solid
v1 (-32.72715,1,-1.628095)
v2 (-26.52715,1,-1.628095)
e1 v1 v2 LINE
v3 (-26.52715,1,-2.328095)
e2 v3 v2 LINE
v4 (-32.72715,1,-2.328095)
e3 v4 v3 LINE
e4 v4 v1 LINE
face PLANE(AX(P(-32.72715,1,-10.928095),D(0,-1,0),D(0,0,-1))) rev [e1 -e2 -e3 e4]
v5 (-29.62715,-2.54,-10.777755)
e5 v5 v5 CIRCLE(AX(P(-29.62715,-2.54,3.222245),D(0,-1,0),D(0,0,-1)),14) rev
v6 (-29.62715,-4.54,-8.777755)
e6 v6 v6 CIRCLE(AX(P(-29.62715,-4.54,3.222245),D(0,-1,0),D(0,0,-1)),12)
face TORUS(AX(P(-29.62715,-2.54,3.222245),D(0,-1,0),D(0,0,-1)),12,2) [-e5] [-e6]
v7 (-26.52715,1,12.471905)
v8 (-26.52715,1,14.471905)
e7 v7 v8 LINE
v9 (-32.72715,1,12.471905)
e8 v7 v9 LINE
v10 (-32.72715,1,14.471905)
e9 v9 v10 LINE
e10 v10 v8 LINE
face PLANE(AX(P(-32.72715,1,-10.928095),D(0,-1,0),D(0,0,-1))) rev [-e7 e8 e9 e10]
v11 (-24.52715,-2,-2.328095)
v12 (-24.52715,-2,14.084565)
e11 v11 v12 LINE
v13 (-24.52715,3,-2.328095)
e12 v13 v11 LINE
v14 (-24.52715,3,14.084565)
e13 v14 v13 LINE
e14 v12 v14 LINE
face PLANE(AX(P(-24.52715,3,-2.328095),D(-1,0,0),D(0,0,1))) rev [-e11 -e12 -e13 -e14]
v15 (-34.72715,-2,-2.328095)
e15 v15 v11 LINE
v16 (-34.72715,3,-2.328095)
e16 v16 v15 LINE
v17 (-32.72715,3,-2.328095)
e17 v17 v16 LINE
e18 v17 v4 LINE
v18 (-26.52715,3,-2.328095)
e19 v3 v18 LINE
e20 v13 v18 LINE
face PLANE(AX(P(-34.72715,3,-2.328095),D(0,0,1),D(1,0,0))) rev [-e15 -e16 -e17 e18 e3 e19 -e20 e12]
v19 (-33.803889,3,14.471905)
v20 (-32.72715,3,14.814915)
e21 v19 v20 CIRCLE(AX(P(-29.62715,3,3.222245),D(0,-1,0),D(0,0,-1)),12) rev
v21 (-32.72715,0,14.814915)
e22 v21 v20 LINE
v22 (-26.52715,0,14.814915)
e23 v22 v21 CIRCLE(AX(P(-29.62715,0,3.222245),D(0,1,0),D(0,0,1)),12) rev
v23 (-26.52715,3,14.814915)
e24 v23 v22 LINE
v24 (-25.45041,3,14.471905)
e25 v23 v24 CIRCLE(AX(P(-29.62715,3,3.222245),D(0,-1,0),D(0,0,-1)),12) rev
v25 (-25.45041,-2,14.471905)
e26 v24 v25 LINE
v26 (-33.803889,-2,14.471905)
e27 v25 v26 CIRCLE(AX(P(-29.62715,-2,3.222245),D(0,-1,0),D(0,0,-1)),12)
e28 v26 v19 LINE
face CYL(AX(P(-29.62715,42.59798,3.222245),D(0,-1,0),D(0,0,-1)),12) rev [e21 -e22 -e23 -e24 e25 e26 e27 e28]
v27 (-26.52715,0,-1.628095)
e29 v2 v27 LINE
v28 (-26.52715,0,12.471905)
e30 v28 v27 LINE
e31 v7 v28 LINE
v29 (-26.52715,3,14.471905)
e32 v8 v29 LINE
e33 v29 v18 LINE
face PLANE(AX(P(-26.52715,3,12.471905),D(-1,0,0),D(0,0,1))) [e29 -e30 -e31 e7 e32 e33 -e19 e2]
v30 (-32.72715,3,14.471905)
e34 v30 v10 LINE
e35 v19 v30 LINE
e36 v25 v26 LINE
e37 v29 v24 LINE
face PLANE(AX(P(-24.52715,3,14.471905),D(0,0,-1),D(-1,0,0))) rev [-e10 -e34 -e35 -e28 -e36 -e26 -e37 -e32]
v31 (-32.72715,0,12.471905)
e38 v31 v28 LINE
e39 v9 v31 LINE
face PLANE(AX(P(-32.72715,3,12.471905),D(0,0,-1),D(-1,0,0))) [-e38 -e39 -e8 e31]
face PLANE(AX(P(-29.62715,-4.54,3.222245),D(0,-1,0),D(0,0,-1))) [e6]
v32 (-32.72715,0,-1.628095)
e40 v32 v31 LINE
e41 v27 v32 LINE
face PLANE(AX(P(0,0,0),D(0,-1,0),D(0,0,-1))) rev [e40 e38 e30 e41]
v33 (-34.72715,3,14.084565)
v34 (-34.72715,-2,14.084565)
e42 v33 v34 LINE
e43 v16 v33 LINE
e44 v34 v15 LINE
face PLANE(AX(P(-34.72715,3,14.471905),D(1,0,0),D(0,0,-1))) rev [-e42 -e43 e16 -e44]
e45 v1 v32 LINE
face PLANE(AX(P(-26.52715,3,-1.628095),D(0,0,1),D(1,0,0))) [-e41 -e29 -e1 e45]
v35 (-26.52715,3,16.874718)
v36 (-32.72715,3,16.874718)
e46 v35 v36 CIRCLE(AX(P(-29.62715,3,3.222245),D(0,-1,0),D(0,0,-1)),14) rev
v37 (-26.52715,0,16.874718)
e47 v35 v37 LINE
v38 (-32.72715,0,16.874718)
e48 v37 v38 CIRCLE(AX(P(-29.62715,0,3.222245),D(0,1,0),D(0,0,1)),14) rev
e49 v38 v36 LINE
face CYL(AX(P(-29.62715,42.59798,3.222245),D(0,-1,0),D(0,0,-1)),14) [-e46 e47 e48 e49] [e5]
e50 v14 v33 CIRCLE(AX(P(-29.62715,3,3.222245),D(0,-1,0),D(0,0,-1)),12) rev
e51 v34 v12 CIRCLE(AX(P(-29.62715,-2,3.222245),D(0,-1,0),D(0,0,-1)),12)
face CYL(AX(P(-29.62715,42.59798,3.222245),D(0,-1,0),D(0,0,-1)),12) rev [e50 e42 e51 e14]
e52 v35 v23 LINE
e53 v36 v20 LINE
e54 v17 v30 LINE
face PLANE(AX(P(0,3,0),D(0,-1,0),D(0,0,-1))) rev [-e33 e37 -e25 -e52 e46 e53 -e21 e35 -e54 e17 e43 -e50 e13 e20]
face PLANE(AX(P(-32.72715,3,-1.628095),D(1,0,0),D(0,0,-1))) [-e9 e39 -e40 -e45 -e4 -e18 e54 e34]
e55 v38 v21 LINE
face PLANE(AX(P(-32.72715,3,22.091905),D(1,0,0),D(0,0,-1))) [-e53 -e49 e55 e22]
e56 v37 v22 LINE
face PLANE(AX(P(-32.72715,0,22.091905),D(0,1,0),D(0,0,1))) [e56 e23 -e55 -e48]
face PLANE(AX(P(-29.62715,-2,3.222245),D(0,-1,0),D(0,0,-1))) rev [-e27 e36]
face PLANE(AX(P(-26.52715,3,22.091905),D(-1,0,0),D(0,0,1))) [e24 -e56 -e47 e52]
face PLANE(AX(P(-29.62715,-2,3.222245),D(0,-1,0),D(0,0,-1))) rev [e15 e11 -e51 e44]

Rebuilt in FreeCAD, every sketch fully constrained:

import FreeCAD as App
import Part
import Sketcher
Q = App.Units.Quantity


def edges_at(feature, points):
    """Names of the edges that pass closest to the given points."""
    edges = feature.Shape.Edges
    near = lambda p: min(range(len(edges)), key=lambda i: edges[i].distToShape(Part.Vertex(*p))[0])
    return sorted({f"Edge{near(p) + 1}" for p in points})


def add_polygon(sketch, points):
    """Adds a closed chain of lines whose ends are joined by coincident constraints."""
    first, n = sketch.GeometryCount, len(points)
    for a, b in zip(points, points[1:] + points[:1]):
        sketch.addGeometry(Part.LineSegment(App.Vector(*a, 0), App.Vector(*b, 0)), False)
    for i in range(n):
        sketch.addConstraint(Sketcher.Constraint("Coincident", first + i, 2, first + (i + 1) % n, 1))

doc = App.newDocument("Part")
body = doc.addObject("PartDesign::Body", "Body")

# Sketch on XZ plane
sketch1 = body.newObject("Sketcher::SketchObject", "Sketch")
sketch1.AttachmentSupport = (doc.getObject("XZ_Plane"), [""])
sketch1.MapMode = "FlatFace"
add_polygon(sketch1, [(-35, -2), (-35, 14), (-25, 14), (-25, -2)])  # lines 0-3
add_polygon(sketch1, [(-27, 12), (-33, 12), (-33, -2), (-27, -2)])  # lines 4-7
sketch1.addConstraint(Sketcher.Constraint("Vertical", 0))
sketch1.addConstraint(Sketcher.Constraint("Horizontal", 1))
sketch1.addConstraint(Sketcher.Constraint("Vertical", 2))
sketch1.addConstraint(Sketcher.Constraint("Horizontal", 3))
sketch1.addConstraint(Sketcher.Constraint("Horizontal", 4))
sketch1.addConstraint(Sketcher.Constraint("Vertical", 5))
sketch1.addConstraint(Sketcher.Constraint("Horizontal", 6))
sketch1.addConstraint(Sketcher.Constraint("Vertical", 7))
sketch1.addConstraint(Sketcher.Constraint("DistanceX", 1, 1, 1, 2, Q("10.2 mm")))
sketch1.addConstraint(Sketcher.Constraint("DistanceX", 4, 2, 4, 1, Q("6.2 mm")))
sketch1.addConstraint(Sketcher.Constraint("DistanceY", 0, 1, 0, 2, Q("16.8 mm")))
sketch1.addConstraint(Sketcher.Constraint("DistanceY", 5, 2, 5, 1, Q("14.1 mm")))
sketch1.addConstraint(Sketcher.Constraint("DistanceX", 0, 2, 4, 2, Q("2 mm")))
sketch1.addConstraint(Sketcher.Constraint("DistanceY", 4, 2, 0, 2, Q("2 mm")))
sketch1.addConstraint(Sketcher.Constraint("DistanceX", 0, 2, -1, 1, Q("34.72715 mm")))
sketch1.addConstraint(Sketcher.Constraint("DistanceY", -1, 1, 0, 2, Q("14.471905 mm")))
pad1 = body.newObject("PartDesign::Pad", "Pad")
pad1.Profile = sketch1
pad1.Length = 3
pad1.Reversed = True

# Sketch on XY plane
sketch2 = body.newObject("Sketcher::SketchObject", "Sketch001")
sketch2.AttachmentSupport = (doc.getObject("XY_Plane"), [""])
sketch2.MapMode = "FlatFace"
sketch2.AttachmentOffset = App.Placement(App.Vector(0, 0, 14.471905), App.Rotation())
add_polygon(sketch2, [(-32.7, 3), (-32.7, 1), (-26.5, 1), (-26.5, 3)])  # lines 0-3
sketch2.addConstraint(Sketcher.Constraint("Vertical", 0))
sketch2.addConstraint(Sketcher.Constraint("Horizontal", 1))
sketch2.addConstraint(Sketcher.Constraint("Vertical", 2))
sketch2.addConstraint(Sketcher.Constraint("Horizontal", 3))
sketch2.addConstraint(Sketcher.Constraint("DistanceY", 0, 2, 0, 1, Q("2 mm")))
sketch2.addConstraint(Sketcher.Constraint("DistanceX", 1, 1, 1, 2, Q("6.2 mm")))
sketch2.addConstraint(Sketcher.Constraint("DistanceY", -1, 1, 0, 2, Q("1 mm")))
sketch2.addConstraint(Sketcher.Constraint("DistanceX", 0, 2, -1, 1, Q("32.72715 mm")))
pocket1 = body.newObject("PartDesign::Pocket", "Pocket")
pocket1.Profile = sketch2
pocket1.Length = 25.4

# Sketch on XZ plane
sketch3 = body.newObject("Sketcher::SketchObject", "Sketch002")
sketch3.AttachmentSupport = (doc.getObject("XZ_Plane"), [""])
sketch3.MapMode = "FlatFace"
add_polygon(sketch3, [(-35, 14), (-35, -2), (-25, -2), (-25, 14)])  # lines 0-3
sketch3.addConstraint(Sketcher.Constraint("Vertical", 0))
sketch3.addConstraint(Sketcher.Constraint("Horizontal", 1))
sketch3.addConstraint(Sketcher.Constraint("Vertical", 2))
sketch3.addConstraint(Sketcher.Constraint("Horizontal", 3))
sketch3.addConstraint(Sketcher.Constraint("DistanceX", 1, 1, 1, 2, Q("10.2 mm")))
sketch3.addConstraint(Sketcher.Constraint("DistanceY", 0, 2, 0, 1, Q("16.8 mm")))
sketch3.addConstraint(Sketcher.Constraint("DistanceX", 0, 2, -1, 1, Q("34.72715 mm")))
sketch3.addConstraint(Sketcher.Constraint("DistanceY", 0, 2, -1, 1, Q("2.328095 mm")))
pad2 = body.newObject("PartDesign::Pad", "Pad001")
pad2.Profile = sketch3
pad2.Length = 2

# Sketch on XZ plane
sketch4 = body.newObject("Sketcher::SketchObject", "Sketch003")
sketch4.AttachmentSupport = (doc.getObject("XZ_Plane"), [""])
sketch4.MapMode = "FlatFace"
sketch4.AttachmentOffset = App.Placement(App.Vector(0, 0, 2), App.Rotation())
sketch4.addGeometry(Part.Circle(App.Vector(-30, 3, 0), App.Vector(0, 0, 1), 14), False)
sketch4.addGeometry(Part.Circle(App.Vector(-30, 3, 0), App.Vector(0, 0, 1), 12), False)
sketch4.addConstraint(Sketcher.Constraint("Coincident", 1, 3, 0, 3))
sketch4.addConstraint(Sketcher.Constraint("Diameter", 0, Q("28 mm")))
sketch4.addConstraint(Sketcher.Constraint("Diameter", 1, Q("24 mm")))
sketch4.addConstraint(Sketcher.Constraint("DistanceX", 0, 3, -1, 1, Q("29.62715 mm")))
sketch4.addConstraint(Sketcher.Constraint("DistanceY", -1, 1, 0, 3, Q("3.222245 mm")))
pad3 = body.newObject("PartDesign::Pad", "Pad002")
pad3.Profile = sketch4
pad3.Length = 5
pad3.Reversed = True

# Sketch on XZ plane
sketch5 = body.newObject("Sketcher::SketchObject", "Sketch004")
sketch5.AttachmentSupport = (doc.getObject("XZ_Plane"), [""])
sketch5.MapMode = "FlatFace"
sketch5.AttachmentOffset = App.Placement(App.Vector(0, 0, 4.54), App.Rotation())
sketch5.addGeometry(Part.Circle(App.Vector(-30, 3, 0), App.Vector(0, 0, 1), 14), False)
sketch5.addConstraint(Sketcher.Constraint("Diameter", 0, Q("28 mm")))
sketch5.addConstraint(Sketcher.Constraint("DistanceX", 0, 3, -1, 1, Q("29.62715 mm")))
sketch5.addConstraint(Sketcher.Constraint("DistanceY", -1, 1, 0, 3, Q("3.222245 mm")))
pad4 = body.newObject("PartDesign::Pad", "Pad003")
pad4.Profile = sketch5
pad4.Length = 2.54
pad4.Reversed = True

# Sketch on XY plane
sketch6 = body.newObject("Sketcher::SketchObject", "Sketch005")
sketch6.AttachmentSupport = (doc.getObject("XY_Plane"), [""])
sketch6.MapMode = "FlatFace"
sketch6.AttachmentOffset = App.Placement(App.Vector(0, 0, 14.471905), App.Rotation())
add_polygon(sketch6, [(-32.7, 3), (-32.7, 0), (-26.5, 0), (-26.5, 3)])  # lines 0-3
sketch6.addConstraint(Sketcher.Constraint("Vertical", 0))
sketch6.addConstraint(Sketcher.Constraint("Horizontal", 1))
sketch6.addConstraint(Sketcher.Constraint("Vertical", 2))
sketch6.addConstraint(Sketcher.Constraint("Horizontal", 3))
sketch6.addConstraint(Sketcher.Constraint("PointOnObject", 0, 2, -1))
sketch6.addConstraint(Sketcher.Constraint("DistanceY", 0, 2, 0, 1, Q("3 mm")))
sketch6.addConstraint(Sketcher.Constraint("DistanceX", 1, 1, 1, 2, Q("6.2 mm")))
sketch6.addConstraint(Sketcher.Constraint("DistanceX", 0, 2, -1, 1, Q("32.72715 mm")))
pocket2 = body.newObject("PartDesign::Pocket", "Pocket001")
pocket2.Profile = sketch6
pocket2.Length = 7.62
pocket2.Reversed = True
doc.recompute()

fillet = body.newObject("PartDesign::Fillet", "Fillet")
fillet.Base = (pocket2, edges_at(pocket2, [(-29.627, -4.54, 17.222)]))
fillet.Radius = 2

doc.recompute()
